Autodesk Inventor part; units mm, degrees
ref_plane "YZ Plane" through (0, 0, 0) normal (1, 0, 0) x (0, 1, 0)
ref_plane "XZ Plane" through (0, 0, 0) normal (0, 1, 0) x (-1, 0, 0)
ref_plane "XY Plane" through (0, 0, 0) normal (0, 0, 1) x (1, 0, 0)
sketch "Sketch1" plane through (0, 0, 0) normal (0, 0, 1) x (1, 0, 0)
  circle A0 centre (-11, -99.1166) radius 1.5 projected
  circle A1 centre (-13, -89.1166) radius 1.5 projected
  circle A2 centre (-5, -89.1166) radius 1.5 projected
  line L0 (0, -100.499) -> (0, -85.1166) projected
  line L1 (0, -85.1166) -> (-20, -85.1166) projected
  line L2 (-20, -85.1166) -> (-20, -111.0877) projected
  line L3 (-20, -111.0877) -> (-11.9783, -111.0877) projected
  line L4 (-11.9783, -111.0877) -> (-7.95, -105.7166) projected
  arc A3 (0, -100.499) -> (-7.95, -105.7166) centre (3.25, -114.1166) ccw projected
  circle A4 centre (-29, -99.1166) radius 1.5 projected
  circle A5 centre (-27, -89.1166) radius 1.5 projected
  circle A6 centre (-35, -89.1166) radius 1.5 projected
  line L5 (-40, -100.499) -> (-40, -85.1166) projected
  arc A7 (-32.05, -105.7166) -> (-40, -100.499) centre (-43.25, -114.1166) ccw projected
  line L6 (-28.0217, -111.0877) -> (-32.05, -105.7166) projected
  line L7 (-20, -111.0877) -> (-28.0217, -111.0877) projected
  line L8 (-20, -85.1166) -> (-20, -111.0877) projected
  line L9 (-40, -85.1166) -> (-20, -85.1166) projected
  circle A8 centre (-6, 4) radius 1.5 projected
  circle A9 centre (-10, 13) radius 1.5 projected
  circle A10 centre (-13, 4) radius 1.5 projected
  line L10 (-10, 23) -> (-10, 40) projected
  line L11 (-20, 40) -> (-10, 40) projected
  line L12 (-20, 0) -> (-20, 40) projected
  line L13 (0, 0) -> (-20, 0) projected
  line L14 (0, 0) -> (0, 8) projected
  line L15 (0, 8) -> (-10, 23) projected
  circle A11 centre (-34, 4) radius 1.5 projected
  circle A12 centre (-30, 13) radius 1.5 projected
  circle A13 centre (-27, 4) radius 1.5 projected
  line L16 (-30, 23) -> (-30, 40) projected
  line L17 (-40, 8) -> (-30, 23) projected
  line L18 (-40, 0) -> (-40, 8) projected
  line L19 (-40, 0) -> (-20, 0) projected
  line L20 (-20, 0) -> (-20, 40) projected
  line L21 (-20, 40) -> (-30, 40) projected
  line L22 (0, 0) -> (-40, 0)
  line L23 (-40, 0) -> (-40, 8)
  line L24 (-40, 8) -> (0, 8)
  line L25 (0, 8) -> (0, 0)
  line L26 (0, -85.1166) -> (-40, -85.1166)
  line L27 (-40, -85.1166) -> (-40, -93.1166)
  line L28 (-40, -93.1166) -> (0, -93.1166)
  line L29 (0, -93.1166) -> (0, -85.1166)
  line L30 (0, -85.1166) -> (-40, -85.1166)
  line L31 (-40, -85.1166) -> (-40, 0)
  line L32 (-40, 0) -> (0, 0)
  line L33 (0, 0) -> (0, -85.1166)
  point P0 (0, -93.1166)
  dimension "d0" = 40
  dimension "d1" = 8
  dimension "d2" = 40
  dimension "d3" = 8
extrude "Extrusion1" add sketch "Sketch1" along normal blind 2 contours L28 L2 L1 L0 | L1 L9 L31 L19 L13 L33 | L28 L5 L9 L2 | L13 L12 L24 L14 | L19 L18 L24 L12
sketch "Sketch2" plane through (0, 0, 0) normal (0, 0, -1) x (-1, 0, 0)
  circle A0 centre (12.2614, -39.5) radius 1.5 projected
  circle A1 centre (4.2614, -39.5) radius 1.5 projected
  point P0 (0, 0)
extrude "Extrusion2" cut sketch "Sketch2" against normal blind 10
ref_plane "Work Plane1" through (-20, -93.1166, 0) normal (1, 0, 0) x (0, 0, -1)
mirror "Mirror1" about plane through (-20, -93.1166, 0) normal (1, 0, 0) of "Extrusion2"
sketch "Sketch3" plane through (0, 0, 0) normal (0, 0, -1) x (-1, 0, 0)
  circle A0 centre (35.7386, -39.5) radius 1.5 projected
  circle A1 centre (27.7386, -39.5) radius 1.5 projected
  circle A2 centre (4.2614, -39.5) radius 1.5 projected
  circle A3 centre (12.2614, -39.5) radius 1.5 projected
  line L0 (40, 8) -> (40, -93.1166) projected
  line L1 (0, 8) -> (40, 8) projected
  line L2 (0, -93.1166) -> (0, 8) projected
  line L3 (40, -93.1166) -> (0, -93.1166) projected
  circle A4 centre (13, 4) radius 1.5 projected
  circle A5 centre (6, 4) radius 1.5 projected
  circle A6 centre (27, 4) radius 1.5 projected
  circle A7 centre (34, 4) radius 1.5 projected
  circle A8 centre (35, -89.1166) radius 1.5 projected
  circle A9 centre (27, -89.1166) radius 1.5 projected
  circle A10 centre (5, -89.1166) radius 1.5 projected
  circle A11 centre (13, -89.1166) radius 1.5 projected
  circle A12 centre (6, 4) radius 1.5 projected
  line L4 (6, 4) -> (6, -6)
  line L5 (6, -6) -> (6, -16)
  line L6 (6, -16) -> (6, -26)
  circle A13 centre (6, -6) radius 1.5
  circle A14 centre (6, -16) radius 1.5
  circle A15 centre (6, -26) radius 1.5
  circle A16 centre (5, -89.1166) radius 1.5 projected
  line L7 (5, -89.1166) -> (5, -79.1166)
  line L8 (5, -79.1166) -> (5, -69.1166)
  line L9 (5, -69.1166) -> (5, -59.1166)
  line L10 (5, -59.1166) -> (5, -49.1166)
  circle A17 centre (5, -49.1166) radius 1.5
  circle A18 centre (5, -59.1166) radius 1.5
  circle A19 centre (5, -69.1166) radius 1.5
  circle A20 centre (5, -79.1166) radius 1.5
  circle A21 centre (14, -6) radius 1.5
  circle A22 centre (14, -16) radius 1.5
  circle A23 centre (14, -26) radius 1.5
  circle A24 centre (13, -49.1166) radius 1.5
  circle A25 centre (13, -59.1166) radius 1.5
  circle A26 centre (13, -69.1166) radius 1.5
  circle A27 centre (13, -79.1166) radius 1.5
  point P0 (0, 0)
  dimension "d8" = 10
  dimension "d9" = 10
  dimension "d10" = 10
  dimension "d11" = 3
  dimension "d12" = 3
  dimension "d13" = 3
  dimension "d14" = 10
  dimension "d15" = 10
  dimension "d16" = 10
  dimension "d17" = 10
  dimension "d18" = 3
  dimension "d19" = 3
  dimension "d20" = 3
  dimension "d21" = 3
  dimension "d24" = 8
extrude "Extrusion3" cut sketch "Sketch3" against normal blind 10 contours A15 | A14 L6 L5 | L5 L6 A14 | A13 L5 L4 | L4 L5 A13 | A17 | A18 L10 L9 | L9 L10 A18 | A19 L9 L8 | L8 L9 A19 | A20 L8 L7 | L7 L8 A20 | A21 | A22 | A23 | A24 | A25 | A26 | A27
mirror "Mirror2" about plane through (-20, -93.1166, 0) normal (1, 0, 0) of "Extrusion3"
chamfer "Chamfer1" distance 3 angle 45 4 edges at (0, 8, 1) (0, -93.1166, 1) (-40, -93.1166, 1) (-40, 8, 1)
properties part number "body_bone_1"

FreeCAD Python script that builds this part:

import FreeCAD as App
import Part
import Sketcher
from FreeCAD import Vector


def edges_at(feature, points):
    """Names of the edges that pass closest to the given points."""
    edges = feature.Shape.Edges
    near = lambda p: min(range(len(edges)), key=lambda i: edges[i].distToShape(Part.Vertex(*p))[0])
    return sorted({f"Edge{near(p) + 1}" for p in points})

doc = App.newDocument("Part")
body = doc.addObject("PartDesign::Body", "Body")

sketch1 = doc.addObject("Sketcher::SketchObject", "Sketch")
body.addObject(sketch1)
sketch1.AttachmentSupport = (doc.XY_Plane, [""])
sketch1.MapMode = "FlatFace"
sketch1.addGeometry([
    Part.LineSegment(Vector(0, -93.1166, 0), Vector(0, 8, 0)),
    Part.LineSegment(Vector(0, 8, 0), Vector(-40, 8, 0)),
    Part.LineSegment(Vector(-40, 8, 0), Vector(-40, -93.1166, 0)),
    Part.LineSegment(Vector(-40, -93.1166, 0), Vector(0, -93.1166, 0)),
    Part.Circle(Vector(-13, -89.1166, 0), Vector(0, 0, 1), 1.5),
    Part.Circle(Vector(-5, -89.1166, 0), Vector(0, 0, 1), 1.5),
    Part.Circle(Vector(-27, -89.1166, 0), Vector(0, 0, 1), 1.5),
    Part.Circle(Vector(-35, -89.1166, 0), Vector(0, 0, 1), 1.5),
    Part.Circle(Vector(-6, 4, 0), Vector(0, 0, 1), 1.5),
    Part.Circle(Vector(-13, 4, 0), Vector(0, 0, 1), 1.5),
    Part.Circle(Vector(-27, 4, 0), Vector(0, 0, 1), 1.5),
    Part.Circle(Vector(-34, 4, 0), Vector(0, 0, 1), 1.5),
], False)
sketch1.addConstraint([
    Sketcher.Constraint("Coincident", 0, 2, 1, 1),
    Sketcher.Constraint("Coincident", 1, 2, 2, 1),
    Sketcher.Constraint("Coincident", 2, 2, 3, 1),
    Sketcher.Constraint("Coincident", 3, 2, 0, 1),
    Sketcher.Constraint("Vertical", 0),
    Sketcher.Constraint("Horizontal", 1),
    Sketcher.Constraint("Vertical", 2),
    Sketcher.Constraint("Horizontal", 3),
    Sketcher.Constraint("Equal", 4, 5),
    Sketcher.Constraint("Equal", 5, 6),
    Sketcher.Constraint("Equal", 6, 7),
    Sketcher.Constraint("Equal", 7, 8),
    Sketcher.Constraint("Equal", 8, 9),
    Sketcher.Constraint("Equal", 9, 10),
    Sketcher.Constraint("Equal", 10, 11),
    Sketcher.Constraint("PointOnObject", 0, 2, -2),
    Sketcher.Constraint("Horizontal", 4, 3, 5, 3),
    Sketcher.Constraint("Horizontal", 5, 3, 6, 3),
    Sketcher.Constraint("Horizontal", 6, 3, 7, 3),
    Sketcher.Constraint("Horizontal", 8, 3, 9, 3),
    Sketcher.Constraint("Horizontal", 9, 3, 10, 3),
    Sketcher.Constraint("Horizontal", 10, 3, 11, 3),
    Sketcher.Constraint("Vertical", 4, 3, 9, 3),
    Sketcher.Constraint("Vertical", 6, 3, 10, 3),
    Sketcher.Constraint("DistanceX", 1, 2, 1, 1, 40.0),
    Sketcher.Constraint("Diameter", 4, 3.0),
    Sketcher.Constraint("DistanceY", -1, 1, 0, 2, 8.0),
    Sketcher.Constraint("DistanceX", 4, 3, 5, 3, 8.0),
    Sketcher.Constraint("DistanceX", 7, 3, 6, 3, 8.0),
    Sketcher.Constraint("DistanceX", 4, 3, -1, 1, 13.0),
    Sketcher.Constraint("DistanceX", 6, 3, -1, 1, 27.0),
    Sketcher.Constraint("DistanceX", 8, 3, -1, 1, 6.0),
    Sketcher.Constraint("DistanceY", -1, 1, 8, 3, 4.0),
    Sketcher.Constraint("DistanceX", 11, 3, -1, 1, 34.0),
    Sketcher.Constraint("DistanceY", 2, 2, 7, 3, 4.0),
    Sketcher.Constraint("DistanceY", 0, 1, 0, 2, 101.1166),
])
pad1 = doc.addObject("PartDesign::Pad", "Pad")
body.addObject(pad1)
pad1.Profile = sketch1
pad1.Length = 2

sketch2 = doc.addObject("Sketcher::SketchObject", "Sketch001")
body.addObject(sketch2)
sketch2.AttachmentSupport = (doc.XY_Plane, [""])
sketch2.MapMode = "FlatFace"
sketch2.addGeometry([
    Part.Circle(Vector(-12.2614, -39.5, 0), Vector(0, 0, 1), 1.5),
    Part.Circle(Vector(-4.2614, -39.5, 0), Vector(0, 0, 1), 1.5),
], False)
sketch2.addConstraint([
    Sketcher.Constraint("Equal", 0, 1),
    Sketcher.Constraint("Horizontal", 0, 3, 1, 3),
    Sketcher.Constraint("Diameter", 0, 3.0),
    Sketcher.Constraint("DistanceX", 0, 3, 1, 3, 8.0),
    Sketcher.Constraint("DistanceY", 0, 3, -1, 1, 39.5),
    Sketcher.Constraint("DistanceX", 0, 3, -1, 1, 12.2614),
])
pocket1 = doc.addObject("PartDesign::Pocket", "Pocket")
body.addObject(pocket1)
pocket1.Profile = sketch2
pocket1.Length = 10
pocket1.Reversed = True
doc.recompute()

datumplane = doc.addObject("PartDesign::Plane", "DatumPlane")
body.addObject(datumplane)
datumplane.AttachmentSupport = (doc.YZ_Plane, [""])
datumplane.MapMode = "FlatFace"
datumplane.AttachmentOffset = App.Placement(Vector(0, 0, -20), App.Rotation())
mirrored = doc.addObject("PartDesign::Mirrored", "Mirrored")
body.addObject(mirrored)
mirrored.Originals = [pocket1]
mirrored.MirrorPlane = (datumplane, [""])
body.Tip = mirrored

sketch3 = doc.addObject("Sketcher::SketchObject", "Sketch002")
body.addObject(sketch3)
sketch3.AttachmentSupport = (doc.XY_Plane, [""])
sketch3.MapMode = "FlatFace"
sketch3.addGeometry([
    Part.Circle(Vector(-6, -26, 0), Vector(0, 0, 1), 1.5),
    Part.Circle(Vector(-6, -16, 0), Vector(0, 0, 1), 1.5),
    Part.Circle(Vector(-6, -6, 0), Vector(0, 0, 1), 1.5),
    Part.Circle(Vector(-5, -49.1166, 0), Vector(0, 0, 1), 1.5),
    Part.Circle(Vector(-5, -59.1166, 0), Vector(0, 0, 1), 1.5),
    Part.Circle(Vector(-5, -69.1166, 0), Vector(0, 0, 1), 1.5),
    Part.Circle(Vector(-5, -79.1166, 0), Vector(0, 0, 1), 1.5),
    Part.Circle(Vector(-14, -6, 0), Vector(0, 0, 1), 1.5),
    Part.Circle(Vector(-14, -16, 0), Vector(0, 0, 1), 1.5),
    Part.Circle(Vector(-14, -26, 0), Vector(0, 0, 1), 1.5),
    Part.Circle(Vector(-13, -49.1166, 0), Vector(0, 0, 1), 1.5),
    Part.Circle(Vector(-13, -59.1166, 0), Vector(0, 0, 1), 1.5),
    Part.Circle(Vector(-13, -69.1166, 0), Vector(0, 0, 1), 1.5),
    Part.Circle(Vector(-13, -79.1166, 0), Vector(0, 0, 1), 1.5),
], False)
sketch3.addConstraint([
    Sketcher.Constraint("Equal", 0, 1),
    Sketcher.Constraint("Equal", 1, 2),
    Sketcher.Constraint("Equal", 2, 3),
    Sketcher.Constraint("Equal", 3, 4),
    Sketcher.Constraint("Equal", 4, 5),
    Sketcher.Constraint("Equal", 5, 6),
    Sketcher.Constraint("Equal", 6, 7),
    Sketcher.Constraint("Equal", 7, 8),
    Sketcher.Constraint("Equal", 8, 9),
    Sketcher.Constraint("Equal", 9, 10),
    Sketcher.Constraint("Equal", 10, 11),
    Sketcher.Constraint("Equal", 11, 12),
    Sketcher.Constraint("Equal", 12, 13),
    Sketcher.Constraint("Horizontal", 2, 3, 7, 3),
    Sketcher.Constraint("Horizontal", 1, 3, 8, 3),
    Sketcher.Constraint("Horizontal", 0, 3, 9, 3),
    Sketcher.Constraint("Horizontal", 3, 3, 10, 3),
    Sketcher.Constraint("Horizontal", 4, 3, 11, 3),
    Sketcher.Constraint("Horizontal", 5, 3, 12, 3),
    Sketcher.Constraint("Horizontal", 6, 3, 13, 3),
    Sketcher.Constraint("Vertical", 0, 3, 1, 3),
    Sketcher.Constraint("Vertical", 1, 3, 2, 3),
    Sketcher.Constraint("Vertical", 3, 3, 4, 3),
    Sketcher.Constraint("Vertical", 4, 3, 5, 3),
    Sketcher.Constraint("Vertical", 5, 3, 6, 3),
    Sketcher.Constraint("Vertical", 7, 3, 8, 3),
    Sketcher.Constraint("Vertical", 8, 3, 9, 3),
    Sketcher.Constraint("Vertical", 10, 3, 11, 3),
    Sketcher.Constraint("Vertical", 11, 3, 12, 3),
    Sketcher.Constraint("Vertical", 12, 3, 13, 3),
    Sketcher.Constraint("Diameter", 0, 3.0),
    Sketcher.Constraint("DistanceY", 0, 3, 1, 3, 10.0),
    Sketcher.Constraint("DistanceY", 1, 3, 2, 3, 10.0),
    Sketcher.Constraint("DistanceY", 4, 3, 3, 3, 10.0),
    Sketcher.Constraint("DistanceY", 5, 3, 4, 3, 10.0),
    Sketcher.Constraint("DistanceY", 6, 3, 5, 3, 10.0),
    Sketcher.Constraint("DistanceX", 7, 3, 2, 3, 8.0),
    Sketcher.Constraint("DistanceX", 10, 3, 3, 3, 8.0),
    Sketcher.Constraint("DistanceX", 0, 3, -1, 1, 6.0),
    Sketcher.Constraint("DistanceY", 0, 3, -1, 1, 26.0),
    Sketcher.Constraint("DistanceX", 3, 3, -1, 1, 5.0),
    Sketcher.Constraint("DistanceY", 3, 3, -1, 1, 49.1166),
])
pocket2 = doc.addObject("PartDesign::Pocket", "Pocket001")
body.addObject(pocket2)
pocket2.Profile = sketch3
pocket2.Length = 10
pocket2.Reversed = True
doc.recompute()

datumplane2 = doc.addObject("PartDesign::Plane", "DatumPlane001")
body.addObject(datumplane2)
datumplane2.AttachmentSupport = (doc.YZ_Plane, [""])
datumplane2.MapMode = "FlatFace"
datumplane2.AttachmentOffset = App.Placement(Vector(0, 0, -20), App.Rotation())
mirrored2 = doc.addObject("PartDesign::Mirrored", "Mirrored001")
body.addObject(mirrored2)
mirrored2.Originals = [pocket2]
mirrored2.MirrorPlane = (datumplane2, [""])
body.Tip = mirrored2
doc.recompute()

chamfer = doc.addObject("PartDesign::Chamfer", "Chamfer")
body.addObject(chamfer)
chamfer.Base = (mirrored2, edges_at(mirrored2, [
    (0, 8, 1),
    (0, -93.117, 1),
    (-40, -93.117, 1),
    (-40, 8, 1),
]))
chamfer.Size = 3

doc.recompute()
